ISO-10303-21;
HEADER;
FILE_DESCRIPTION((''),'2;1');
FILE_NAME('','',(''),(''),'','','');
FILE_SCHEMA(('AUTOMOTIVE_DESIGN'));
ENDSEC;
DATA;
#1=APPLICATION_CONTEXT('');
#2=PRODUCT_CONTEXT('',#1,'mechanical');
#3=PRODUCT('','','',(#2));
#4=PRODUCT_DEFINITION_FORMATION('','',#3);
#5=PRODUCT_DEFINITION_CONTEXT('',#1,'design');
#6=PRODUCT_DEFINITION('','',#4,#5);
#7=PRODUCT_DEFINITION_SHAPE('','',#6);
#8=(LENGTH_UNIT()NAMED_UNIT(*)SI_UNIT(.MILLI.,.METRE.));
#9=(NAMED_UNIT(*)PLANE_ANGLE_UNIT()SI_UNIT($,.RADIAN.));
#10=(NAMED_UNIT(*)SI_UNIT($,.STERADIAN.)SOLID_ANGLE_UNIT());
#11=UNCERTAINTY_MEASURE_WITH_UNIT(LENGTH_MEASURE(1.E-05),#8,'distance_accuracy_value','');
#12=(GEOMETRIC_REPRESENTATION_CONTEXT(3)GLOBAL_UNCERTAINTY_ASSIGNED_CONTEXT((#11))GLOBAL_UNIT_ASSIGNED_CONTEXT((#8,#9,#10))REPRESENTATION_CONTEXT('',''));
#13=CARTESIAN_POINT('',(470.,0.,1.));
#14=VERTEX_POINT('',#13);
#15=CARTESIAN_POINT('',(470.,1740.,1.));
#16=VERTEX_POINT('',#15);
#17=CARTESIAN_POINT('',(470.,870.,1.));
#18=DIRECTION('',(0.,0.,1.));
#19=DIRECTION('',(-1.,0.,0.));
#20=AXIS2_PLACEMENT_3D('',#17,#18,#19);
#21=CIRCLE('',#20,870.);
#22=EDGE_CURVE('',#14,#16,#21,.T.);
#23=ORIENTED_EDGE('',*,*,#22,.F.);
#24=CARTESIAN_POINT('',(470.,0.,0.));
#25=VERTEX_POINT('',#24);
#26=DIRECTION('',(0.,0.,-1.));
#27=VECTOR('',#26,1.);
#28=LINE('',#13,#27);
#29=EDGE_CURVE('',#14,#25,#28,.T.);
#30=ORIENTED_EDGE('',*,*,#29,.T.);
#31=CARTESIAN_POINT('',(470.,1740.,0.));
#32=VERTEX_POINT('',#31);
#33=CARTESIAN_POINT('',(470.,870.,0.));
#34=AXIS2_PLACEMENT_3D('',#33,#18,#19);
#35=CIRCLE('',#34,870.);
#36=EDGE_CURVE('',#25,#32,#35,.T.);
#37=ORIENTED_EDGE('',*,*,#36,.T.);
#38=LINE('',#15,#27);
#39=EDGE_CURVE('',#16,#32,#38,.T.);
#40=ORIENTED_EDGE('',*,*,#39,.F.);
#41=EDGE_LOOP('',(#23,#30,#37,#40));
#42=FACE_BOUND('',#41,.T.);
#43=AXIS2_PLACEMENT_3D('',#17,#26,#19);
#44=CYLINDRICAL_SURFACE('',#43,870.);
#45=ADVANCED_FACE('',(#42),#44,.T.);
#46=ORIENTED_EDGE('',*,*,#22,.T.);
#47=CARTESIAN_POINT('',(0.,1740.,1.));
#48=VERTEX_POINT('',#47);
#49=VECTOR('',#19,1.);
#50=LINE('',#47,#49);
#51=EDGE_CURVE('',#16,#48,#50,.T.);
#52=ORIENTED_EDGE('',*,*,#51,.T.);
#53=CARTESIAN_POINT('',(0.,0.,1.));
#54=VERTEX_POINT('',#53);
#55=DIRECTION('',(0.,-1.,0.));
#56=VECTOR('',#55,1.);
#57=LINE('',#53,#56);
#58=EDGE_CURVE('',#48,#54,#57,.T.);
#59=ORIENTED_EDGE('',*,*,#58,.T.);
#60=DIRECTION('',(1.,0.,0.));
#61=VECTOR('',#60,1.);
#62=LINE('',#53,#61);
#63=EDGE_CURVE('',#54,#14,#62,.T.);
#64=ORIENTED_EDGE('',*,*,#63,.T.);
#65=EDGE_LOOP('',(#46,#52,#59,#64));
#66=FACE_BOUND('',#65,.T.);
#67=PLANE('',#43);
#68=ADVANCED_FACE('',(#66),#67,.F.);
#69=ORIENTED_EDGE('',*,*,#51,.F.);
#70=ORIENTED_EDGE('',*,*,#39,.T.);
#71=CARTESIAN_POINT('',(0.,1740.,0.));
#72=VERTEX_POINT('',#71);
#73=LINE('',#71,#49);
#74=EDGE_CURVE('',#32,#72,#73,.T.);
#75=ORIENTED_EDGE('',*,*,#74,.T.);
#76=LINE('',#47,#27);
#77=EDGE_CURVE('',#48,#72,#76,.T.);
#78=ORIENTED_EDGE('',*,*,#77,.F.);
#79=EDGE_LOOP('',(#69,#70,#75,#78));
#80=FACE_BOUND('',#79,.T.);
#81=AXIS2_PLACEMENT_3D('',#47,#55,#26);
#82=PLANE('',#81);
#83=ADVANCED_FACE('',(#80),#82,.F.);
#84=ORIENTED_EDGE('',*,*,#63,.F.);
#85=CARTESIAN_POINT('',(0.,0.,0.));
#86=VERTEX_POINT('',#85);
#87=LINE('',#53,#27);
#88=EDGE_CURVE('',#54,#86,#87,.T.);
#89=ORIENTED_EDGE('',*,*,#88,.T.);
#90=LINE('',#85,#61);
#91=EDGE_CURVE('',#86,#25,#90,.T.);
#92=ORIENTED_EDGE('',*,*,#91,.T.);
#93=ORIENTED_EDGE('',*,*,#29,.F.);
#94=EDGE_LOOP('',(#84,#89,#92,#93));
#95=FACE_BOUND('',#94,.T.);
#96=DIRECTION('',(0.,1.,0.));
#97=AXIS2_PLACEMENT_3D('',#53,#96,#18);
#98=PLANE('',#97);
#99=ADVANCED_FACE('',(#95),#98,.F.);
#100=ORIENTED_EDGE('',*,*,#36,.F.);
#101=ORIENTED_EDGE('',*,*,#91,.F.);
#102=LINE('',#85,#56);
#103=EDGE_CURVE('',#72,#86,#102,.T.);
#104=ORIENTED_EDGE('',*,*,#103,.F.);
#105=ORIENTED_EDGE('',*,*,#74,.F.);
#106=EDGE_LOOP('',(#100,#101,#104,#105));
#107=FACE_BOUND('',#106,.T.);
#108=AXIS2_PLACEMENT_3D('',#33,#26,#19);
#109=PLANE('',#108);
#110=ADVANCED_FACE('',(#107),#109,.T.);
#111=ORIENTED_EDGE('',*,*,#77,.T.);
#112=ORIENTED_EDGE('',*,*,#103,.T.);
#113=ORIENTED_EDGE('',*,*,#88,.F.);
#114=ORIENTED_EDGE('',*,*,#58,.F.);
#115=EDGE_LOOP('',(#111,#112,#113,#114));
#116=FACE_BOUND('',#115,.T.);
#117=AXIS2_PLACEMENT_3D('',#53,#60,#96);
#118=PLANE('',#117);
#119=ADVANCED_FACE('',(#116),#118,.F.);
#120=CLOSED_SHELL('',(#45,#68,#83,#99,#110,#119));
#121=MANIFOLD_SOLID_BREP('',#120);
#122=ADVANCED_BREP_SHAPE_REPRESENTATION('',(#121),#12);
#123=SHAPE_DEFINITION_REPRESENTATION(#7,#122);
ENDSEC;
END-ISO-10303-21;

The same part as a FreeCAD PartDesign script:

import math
import FreeCAD as App
import Part
import Sketcher

doc = App.newDocument("Part")
params = doc.addObject("Spreadsheet::Sheet", "Params")
for row, (alias, value) in enumerate([
    ("sketch1_radius", "870 mm"),
    ("sketch1_width", "470 mm"),
    ("pad1_length", "1 mm"),
], start=1):
    params.set(f"A{row}", alias)
    params.set(f"B{row}", "=" + value)
    params.setAlias(f"B{row}", alias)

body = doc.addObject("PartDesign::Body", "Body")

sketch1 = doc.addObject("Sketcher::SketchObject", "Sketch")
body.addObject(sketch1)
sketch1.AttachmentSupport = (doc.XY_Plane, [""])
sketch1.MapMode = "FlatFace"
sketch1.addGeometry([
    Part.LineSegment(App.Vector(0, 0, 0), App.Vector(470, 0, 0)),
    Part.ArcOfCircle(Part.Circle(App.Vector(470, 870, 0), App.Vector(0, 0, 1), 870), math.radians(-90), math.radians(90)),
    Part.LineSegment(App.Vector(470, 1740, 0), App.Vector(0, 1740, 0)),
    Part.LineSegment(App.Vector(0, 1740, 0), App.Vector(0, 0, 0)),
], False)
sketch1.addConstraint([
    Sketcher.Constraint("Tangent", 0, 2, 1, 1),
    Sketcher.Constraint("Tangent", 1, 2, 2, 1),
    Sketcher.Constraint("Coincident", 2, 2, 3, 1),
    Sketcher.Constraint("Coincident", 3, 2, 0, 1),
    Sketcher.Constraint("Horizontal", 0),
    Sketcher.Constraint("Horizontal", 2),
    Sketcher.Constraint("Vertical", 3),
    Sketcher.Constraint("Coincident", 3, 2, -1, 1),
    Sketcher.Constraint("Radius", 1, 870.0),
    Sketcher.Constraint("DistanceX", 0, 1, 0, 2, 470.0),
])
sketch1.setExpression("Constraints[8]", "Params.sketch1_radius")
sketch1.setExpression("Constraints[9]", "Params.sketch1_width")
pad1 = doc.addObject("PartDesign::Pad", "Pad")
body.addObject(pad1)
pad1.Profile = sketch1
pad1.setExpression("Length", "Params.pad1_length")

doc.recompute()
